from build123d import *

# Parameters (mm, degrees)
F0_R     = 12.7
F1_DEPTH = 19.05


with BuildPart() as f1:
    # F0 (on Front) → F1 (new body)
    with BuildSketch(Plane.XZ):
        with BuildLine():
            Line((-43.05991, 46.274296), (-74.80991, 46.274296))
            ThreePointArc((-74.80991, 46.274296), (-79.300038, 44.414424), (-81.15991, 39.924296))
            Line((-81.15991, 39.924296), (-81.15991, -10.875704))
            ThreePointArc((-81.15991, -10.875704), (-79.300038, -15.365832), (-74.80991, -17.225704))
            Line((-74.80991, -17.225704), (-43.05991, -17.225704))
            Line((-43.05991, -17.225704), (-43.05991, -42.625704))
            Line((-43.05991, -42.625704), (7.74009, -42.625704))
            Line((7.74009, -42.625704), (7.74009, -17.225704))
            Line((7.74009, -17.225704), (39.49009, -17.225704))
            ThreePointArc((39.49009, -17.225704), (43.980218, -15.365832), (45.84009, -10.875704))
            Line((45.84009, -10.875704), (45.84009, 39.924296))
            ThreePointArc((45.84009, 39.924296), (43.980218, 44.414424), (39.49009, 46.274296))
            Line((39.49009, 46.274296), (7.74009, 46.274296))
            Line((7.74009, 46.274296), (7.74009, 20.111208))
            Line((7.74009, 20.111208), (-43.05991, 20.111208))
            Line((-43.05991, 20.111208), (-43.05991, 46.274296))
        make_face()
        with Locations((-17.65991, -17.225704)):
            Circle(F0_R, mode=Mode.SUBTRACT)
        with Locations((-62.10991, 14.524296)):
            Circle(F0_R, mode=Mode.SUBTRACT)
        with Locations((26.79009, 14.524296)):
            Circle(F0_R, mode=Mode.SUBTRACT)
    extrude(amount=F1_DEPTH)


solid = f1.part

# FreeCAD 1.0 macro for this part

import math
import FreeCAD as App
import Part
import Sketcher
from FreeCAD import Vector
Q = App.Units.Quantity

doc = App.newDocument("Part")
params = doc.addObject("Spreadsheet::Sheet", "Params")
for row, (alias, value) in enumerate([
    ("sketch1_diameter", "1 in"),
    ("sketch1_width", "2 in"),
    ("sketch1_height", "1 in"),
    ("sketch1_radius", "0.25 in"),
    ("sketch1_width2", "1.25 in"),
    ("pad1_length", "0.75 in"),
], start=1):
    params.set(f"A{row}", alias)
    params.set(f"B{row}", "=" + value)
    params.setAlias(f"B{row}", alias)

body = doc.addObject("PartDesign::Body", "Body")

sketch1 = doc.addObject("Sketcher::SketchObject", "Sketch")
body.addObject(sketch1)
sketch1.AttachmentSupport = (doc.XZ_Plane, [""])
sketch1.MapMode = "FlatFace"
sketch1.addGeometry([
    Part.LineSegment(Vector(-43.05991, 46.274296, 0), Vector(-74.80991, 46.274296, 0)),
    Part.ArcOfCircle(Part.Circle(Vector(-74.80991, 39.924296, 0), Vector(0, 0, 1), 6.35), math.radians(90.000002), math.radians(179.999998)),
    Part.LineSegment(Vector(-81.15991, 39.924296, 0), Vector(-81.15991, -10.875704, 0)),
    Part.ArcOfCircle(Part.Circle(Vector(-74.80991, -10.875704, 0), Vector(0, 0, 1), 6.35), math.radians(-179.999998), math.radians(-90.000002)),
    Part.LineSegment(Vector(-74.80991, -17.225704, 0), Vector(-43.05991, -17.225704, 0)),
    Part.LineSegment(Vector(-43.05991, -17.225704, 0), Vector(-43.05991, -42.625704, 0)),
    Part.LineSegment(Vector(-43.05991, -42.625704, 0), Vector(7.74009, -42.625704, 0)),
    Part.LineSegment(Vector(7.74009, -42.625704, 0), Vector(7.74009, -17.225704, 0)),
    Part.LineSegment(Vector(7.74009, -17.225704, 0), Vector(39.49009, -17.225704, 0)),
    Part.ArcOfCircle(Part.Circle(Vector(39.49009, -10.875704, 0), Vector(0, 0, 1), 6.35), math.radians(-89.999998), math.radians(-0.000002)),
    Part.LineSegment(Vector(45.84009, -10.875704, 0), Vector(45.84009, 39.924296, 0)),
    Part.ArcOfCircle(Part.Circle(Vector(39.49009, 39.924296, 0), Vector(0, 0, 1), 6.35), math.radians(0.000002), math.radians(89.999998)),
    Part.LineSegment(Vector(39.49009, 46.274296, 0), Vector(7.74009, 46.274296, 0)),
    Part.LineSegment(Vector(7.74009, 46.274296, 0), Vector(7.74009, 20.111208, 0)),
    Part.LineSegment(Vector(7.74009, 20.111208, 0), Vector(-43.05991, 20.111208, 0)),
    Part.LineSegment(Vector(-43.05991, 20.111208, 0), Vector(-43.05991, 46.274296, 0)),
    Part.Circle(Vector(-17.65991, -17.225704, 0), Vector(0, 0, 1), 12.7),
    Part.Circle(Vector(-62.10991, 14.524296, 0), Vector(0, 0, 1), 12.7),
    Part.Circle(Vector(26.79009, 14.524296, 0), Vector(0, 0, 1), 12.7),
], False)
sketch1.addConstraint([
    Sketcher.Constraint("Tangent", 0, 2, 1, 1),
    Sketcher.Constraint("Tangent", 1, 2, 2, 1),
    Sketcher.Constraint("Tangent", 2, 2, 3, 1),
    Sketcher.Constraint("Tangent", 3, 2, 4, 1),
    Sketcher.Constraint("Coincident", 4, 2, 5, 1),
    Sketcher.Constraint("Coincident", 5, 2, 6, 1),
    Sketcher.Constraint("Coincident", 6, 2, 7, 1),
    Sketcher.Constraint("Coincident", 7, 2, 8, 1),
    Sketcher.Constraint("Tangent", 8, 2, 9, 1),
    Sketcher.Constraint("Tangent", 9, 2, 10, 1),
    Sketcher.Constraint("Tangent", 10, 2, 11, 1),
    Sketcher.Constraint("Tangent", 11, 2, 12, 1),
    Sketcher.Constraint("Coincident", 12, 2, 13, 1),
    Sketcher.Constraint("Coincident", 13, 2, 14, 1),
    Sketcher.Constraint("Coincident", 14, 2, 15, 1),
    Sketcher.Constraint("Coincident", 15, 2, 0, 1),
    Sketcher.Constraint("Horizontal", 0),
    Sketcher.Constraint("Vertical", 2),
    Sketcher.Constraint("Horizontal", 4),
    Sketcher.Constraint("Vertical", 5),
    Sketcher.Constraint("Horizontal", 6),
    Sketcher.Constraint("Vertical", 7),
    Sketcher.Constraint("Horizontal", 8),
    Sketcher.Constraint("Vertical", 10),
    Sketcher.Constraint("Horizontal", 12),
    Sketcher.Constraint("Vertical", 13),
    Sketcher.Constraint("Horizontal", 14),
    Sketcher.Constraint("Vertical", 15),
    Sketcher.Constraint("Equal", 1, 3),
    Sketcher.Constraint("Equal", 3, 9),
    Sketcher.Constraint("Equal", 9, 11),
    Sketcher.Constraint("Equal", 16, 17),
    Sketcher.Constraint("Equal", 17, 18),
    Sketcher.Constraint("Horizontal", 3, 3, 9, 3),
    Sketcher.Constraint("Horizontal", 1, 3, 11, 3),
    Sketcher.Constraint("Horizontal", 17, 3, 18, 3),
    Sketcher.Constraint("Horizontal", 16, 3, 3, 2),
    Sketcher.Constraint("Vertical", 7, 2, 12, 2),
    Sketcher.Constraint("Vertical", 5, 2, 14, 2),
    Sketcher.Constraint("Equal", 4, 8),
    Sketcher.Constraint("Equal", 14, 2),
    Sketcher.Constraint("Diameter", 16, Q("1 in")),
    Sketcher.Constraint("DistanceX", 6, 1, 6, 2, Q("2 in")),
    Sketcher.Constraint("DistanceY", 5, 2, 5, 1, Q("1 in")),
    Sketcher.Constraint("Radius", 1, Q("0.25 in")),
    Sketcher.Constraint("DistanceY", 17, 3, 1, 3, Q("1 in")),
    Sketcher.Constraint("DistanceX", 17, 3, 9, 3, Q("4 in")),
    Sketcher.Constraint("DistanceX", 1, 3, 18, 3, Q("4 in")),
    Sketcher.Constraint("DistanceX", 4, 2, 16, 3, Q("1 in")),
    Sketcher.Constraint("DistanceX", 0, 2, 0, 1, Q("1.25 in")),
    Sketcher.Constraint("DistanceY", 13, 2, 13, 1, 26.163088),
    Sketcher.Constraint("DistanceX", 1, 3, -1, 1, 74.80991),
    Sketcher.Constraint("DistanceY", -1, 1, 13, 2, 20.111208),
])
sketch1.setExpression("Constraints[41]", "Params.sketch1_diameter")
sketch1.setExpression("Constraints[42]", "Params.sketch1_width")
sketch1.setExpression("Constraints[43]", "Params.sketch1_height")
sketch1.setExpression("Constraints[44]", "Params.sketch1_radius")
sketch1.setExpression("Constraints[49]", "Params.sketch1_width2")
pad1 = doc.addObject("PartDesign::Pad", "Pad")
body.addObject(pad1)
pad1.Profile = sketch1
pad1.setExpression("Length", "Params.pad1_length")

doc.recompute()
